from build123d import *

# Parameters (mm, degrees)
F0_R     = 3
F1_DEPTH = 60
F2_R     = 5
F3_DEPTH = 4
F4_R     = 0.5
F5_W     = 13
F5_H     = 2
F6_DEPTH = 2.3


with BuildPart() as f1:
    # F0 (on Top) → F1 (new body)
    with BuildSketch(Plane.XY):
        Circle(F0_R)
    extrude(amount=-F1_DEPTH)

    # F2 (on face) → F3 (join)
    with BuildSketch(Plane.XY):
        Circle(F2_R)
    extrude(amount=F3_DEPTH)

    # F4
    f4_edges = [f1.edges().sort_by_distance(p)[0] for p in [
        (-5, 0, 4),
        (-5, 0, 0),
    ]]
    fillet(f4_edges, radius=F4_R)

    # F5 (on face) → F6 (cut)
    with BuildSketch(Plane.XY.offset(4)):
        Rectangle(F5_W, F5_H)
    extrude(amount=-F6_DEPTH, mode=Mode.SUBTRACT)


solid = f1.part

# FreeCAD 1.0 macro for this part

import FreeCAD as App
import Part
import Sketcher
Q = App.Units.Quantity


def edges_at(feature, points):
    """Names of the edges that pass closest to the given points."""
    edges = feature.Shape.Edges
    near = lambda p: min(range(len(edges)), key=lambda i: edges[i].distToShape(Part.Vertex(*p))[0])
    return sorted({f"Edge{near(p) + 1}" for p in points})

doc = App.newDocument("Part")
body = doc.addObject("PartDesign::Body", "Body")

# Sketch on XY plane
sketch1 = body.newObject("Sketcher::SketchObject", "Sketch")
sketch1.AttachmentSupport = (doc.getObject("XY_Plane"), [""])
sketch1.MapMode = "FlatFace"
sketch1.addGeometry(Part.Circle(App.Vector(0, 0, 0), App.Vector(0, 0, 1), 3), False)
sketch1.addConstraint([
    Sketcher.Constraint("Coincident", 0, 3, -1, 1),
    Sketcher.Constraint("Diameter", 0, Q("6 mm")),
])
pad1 = body.newObject("PartDesign::Pad", "Pad")
pad1.Profile = sketch1
pad1.Length = 60
pad1.Reversed = True

# Sketch on XY plane
sketch2 = body.newObject("Sketcher::SketchObject", "Sketch001")
sketch2.AttachmentSupport = (doc.getObject("XY_Plane"), [""])
sketch2.MapMode = "FlatFace"
sketch2.addGeometry(Part.Circle(App.Vector(0, 0, 0), App.Vector(0, 0, 1), 5), False)
sketch2.addConstraint([
    Sketcher.Constraint("Coincident", 0, 3, -1, 1),
    Sketcher.Constraint("Diameter", 0, Q("10 mm")),
])
pad2 = body.newObject("PartDesign::Pad", "Pad001")
pad2.Profile = sketch2
pad2.Length = 4
doc.recompute()

fillet = body.newObject("PartDesign::Fillet", "Fillet")
fillet.Base = (pad2, edges_at(pad2, [(-5, 0, 4), (-5, 0, 0)]))
fillet.Radius = 0.5

# Sketch on XY plane
sketch3 = body.newObject("Sketcher::SketchObject", "Sketch002")
sketch3.AttachmentSupport = (doc.getObject("XY_Plane"), [""])
sketch3.MapMode = "FlatFace"
sketch3.AttachmentOffset = App.Placement(App.Vector(0, 0, 4), App.Rotation())
sketch3.addGeometry([
    Part.LineSegment(App.Vector(-6.5, 1, 0), App.Vector(-6.5, -1, 0)),
    Part.LineSegment(App.Vector(-6.5, -1, 0), App.Vector(6.5, -1, 0)),
    Part.LineSegment(App.Vector(6.5, -1, 0), App.Vector(6.5, 1, 0)),
    Part.LineSegment(App.Vector(6.5, 1, 0), App.Vector(-6.5, 1, 0)),
], False)
sketch3.addConstraint([
    Sketcher.Constraint("Coincident", 0, 2, 1, 1),
    Sketcher.Constraint("Coincident", 1, 2, 2, 1),
    Sketcher.Constraint("Coincident", 2, 2, 3, 1),
    Sketcher.Constraint("Coincident", 3, 2, 0, 1),
    Sketcher.Constraint("Vertical", 0),
    Sketcher.Constraint("Horizontal", 1),
    Sketcher.Constraint("Vertical", 2),
    Sketcher.Constraint("Horizontal", 3),
    Sketcher.Constraint("Symmetric", 0, 2, 2, 2, -1, 1),
    Sketcher.Constraint("DistanceX", 1, 1, 1, 2, Q("13 mm")),
    Sketcher.Constraint("DistanceY", 0, 2, 0, 1, Q("2 mm")),
])
pocket1 = body.newObject("PartDesign::Pocket", "Pocket")
pocket1.Profile = sketch3
pocket1.Length = 2.3

doc.recompute()
